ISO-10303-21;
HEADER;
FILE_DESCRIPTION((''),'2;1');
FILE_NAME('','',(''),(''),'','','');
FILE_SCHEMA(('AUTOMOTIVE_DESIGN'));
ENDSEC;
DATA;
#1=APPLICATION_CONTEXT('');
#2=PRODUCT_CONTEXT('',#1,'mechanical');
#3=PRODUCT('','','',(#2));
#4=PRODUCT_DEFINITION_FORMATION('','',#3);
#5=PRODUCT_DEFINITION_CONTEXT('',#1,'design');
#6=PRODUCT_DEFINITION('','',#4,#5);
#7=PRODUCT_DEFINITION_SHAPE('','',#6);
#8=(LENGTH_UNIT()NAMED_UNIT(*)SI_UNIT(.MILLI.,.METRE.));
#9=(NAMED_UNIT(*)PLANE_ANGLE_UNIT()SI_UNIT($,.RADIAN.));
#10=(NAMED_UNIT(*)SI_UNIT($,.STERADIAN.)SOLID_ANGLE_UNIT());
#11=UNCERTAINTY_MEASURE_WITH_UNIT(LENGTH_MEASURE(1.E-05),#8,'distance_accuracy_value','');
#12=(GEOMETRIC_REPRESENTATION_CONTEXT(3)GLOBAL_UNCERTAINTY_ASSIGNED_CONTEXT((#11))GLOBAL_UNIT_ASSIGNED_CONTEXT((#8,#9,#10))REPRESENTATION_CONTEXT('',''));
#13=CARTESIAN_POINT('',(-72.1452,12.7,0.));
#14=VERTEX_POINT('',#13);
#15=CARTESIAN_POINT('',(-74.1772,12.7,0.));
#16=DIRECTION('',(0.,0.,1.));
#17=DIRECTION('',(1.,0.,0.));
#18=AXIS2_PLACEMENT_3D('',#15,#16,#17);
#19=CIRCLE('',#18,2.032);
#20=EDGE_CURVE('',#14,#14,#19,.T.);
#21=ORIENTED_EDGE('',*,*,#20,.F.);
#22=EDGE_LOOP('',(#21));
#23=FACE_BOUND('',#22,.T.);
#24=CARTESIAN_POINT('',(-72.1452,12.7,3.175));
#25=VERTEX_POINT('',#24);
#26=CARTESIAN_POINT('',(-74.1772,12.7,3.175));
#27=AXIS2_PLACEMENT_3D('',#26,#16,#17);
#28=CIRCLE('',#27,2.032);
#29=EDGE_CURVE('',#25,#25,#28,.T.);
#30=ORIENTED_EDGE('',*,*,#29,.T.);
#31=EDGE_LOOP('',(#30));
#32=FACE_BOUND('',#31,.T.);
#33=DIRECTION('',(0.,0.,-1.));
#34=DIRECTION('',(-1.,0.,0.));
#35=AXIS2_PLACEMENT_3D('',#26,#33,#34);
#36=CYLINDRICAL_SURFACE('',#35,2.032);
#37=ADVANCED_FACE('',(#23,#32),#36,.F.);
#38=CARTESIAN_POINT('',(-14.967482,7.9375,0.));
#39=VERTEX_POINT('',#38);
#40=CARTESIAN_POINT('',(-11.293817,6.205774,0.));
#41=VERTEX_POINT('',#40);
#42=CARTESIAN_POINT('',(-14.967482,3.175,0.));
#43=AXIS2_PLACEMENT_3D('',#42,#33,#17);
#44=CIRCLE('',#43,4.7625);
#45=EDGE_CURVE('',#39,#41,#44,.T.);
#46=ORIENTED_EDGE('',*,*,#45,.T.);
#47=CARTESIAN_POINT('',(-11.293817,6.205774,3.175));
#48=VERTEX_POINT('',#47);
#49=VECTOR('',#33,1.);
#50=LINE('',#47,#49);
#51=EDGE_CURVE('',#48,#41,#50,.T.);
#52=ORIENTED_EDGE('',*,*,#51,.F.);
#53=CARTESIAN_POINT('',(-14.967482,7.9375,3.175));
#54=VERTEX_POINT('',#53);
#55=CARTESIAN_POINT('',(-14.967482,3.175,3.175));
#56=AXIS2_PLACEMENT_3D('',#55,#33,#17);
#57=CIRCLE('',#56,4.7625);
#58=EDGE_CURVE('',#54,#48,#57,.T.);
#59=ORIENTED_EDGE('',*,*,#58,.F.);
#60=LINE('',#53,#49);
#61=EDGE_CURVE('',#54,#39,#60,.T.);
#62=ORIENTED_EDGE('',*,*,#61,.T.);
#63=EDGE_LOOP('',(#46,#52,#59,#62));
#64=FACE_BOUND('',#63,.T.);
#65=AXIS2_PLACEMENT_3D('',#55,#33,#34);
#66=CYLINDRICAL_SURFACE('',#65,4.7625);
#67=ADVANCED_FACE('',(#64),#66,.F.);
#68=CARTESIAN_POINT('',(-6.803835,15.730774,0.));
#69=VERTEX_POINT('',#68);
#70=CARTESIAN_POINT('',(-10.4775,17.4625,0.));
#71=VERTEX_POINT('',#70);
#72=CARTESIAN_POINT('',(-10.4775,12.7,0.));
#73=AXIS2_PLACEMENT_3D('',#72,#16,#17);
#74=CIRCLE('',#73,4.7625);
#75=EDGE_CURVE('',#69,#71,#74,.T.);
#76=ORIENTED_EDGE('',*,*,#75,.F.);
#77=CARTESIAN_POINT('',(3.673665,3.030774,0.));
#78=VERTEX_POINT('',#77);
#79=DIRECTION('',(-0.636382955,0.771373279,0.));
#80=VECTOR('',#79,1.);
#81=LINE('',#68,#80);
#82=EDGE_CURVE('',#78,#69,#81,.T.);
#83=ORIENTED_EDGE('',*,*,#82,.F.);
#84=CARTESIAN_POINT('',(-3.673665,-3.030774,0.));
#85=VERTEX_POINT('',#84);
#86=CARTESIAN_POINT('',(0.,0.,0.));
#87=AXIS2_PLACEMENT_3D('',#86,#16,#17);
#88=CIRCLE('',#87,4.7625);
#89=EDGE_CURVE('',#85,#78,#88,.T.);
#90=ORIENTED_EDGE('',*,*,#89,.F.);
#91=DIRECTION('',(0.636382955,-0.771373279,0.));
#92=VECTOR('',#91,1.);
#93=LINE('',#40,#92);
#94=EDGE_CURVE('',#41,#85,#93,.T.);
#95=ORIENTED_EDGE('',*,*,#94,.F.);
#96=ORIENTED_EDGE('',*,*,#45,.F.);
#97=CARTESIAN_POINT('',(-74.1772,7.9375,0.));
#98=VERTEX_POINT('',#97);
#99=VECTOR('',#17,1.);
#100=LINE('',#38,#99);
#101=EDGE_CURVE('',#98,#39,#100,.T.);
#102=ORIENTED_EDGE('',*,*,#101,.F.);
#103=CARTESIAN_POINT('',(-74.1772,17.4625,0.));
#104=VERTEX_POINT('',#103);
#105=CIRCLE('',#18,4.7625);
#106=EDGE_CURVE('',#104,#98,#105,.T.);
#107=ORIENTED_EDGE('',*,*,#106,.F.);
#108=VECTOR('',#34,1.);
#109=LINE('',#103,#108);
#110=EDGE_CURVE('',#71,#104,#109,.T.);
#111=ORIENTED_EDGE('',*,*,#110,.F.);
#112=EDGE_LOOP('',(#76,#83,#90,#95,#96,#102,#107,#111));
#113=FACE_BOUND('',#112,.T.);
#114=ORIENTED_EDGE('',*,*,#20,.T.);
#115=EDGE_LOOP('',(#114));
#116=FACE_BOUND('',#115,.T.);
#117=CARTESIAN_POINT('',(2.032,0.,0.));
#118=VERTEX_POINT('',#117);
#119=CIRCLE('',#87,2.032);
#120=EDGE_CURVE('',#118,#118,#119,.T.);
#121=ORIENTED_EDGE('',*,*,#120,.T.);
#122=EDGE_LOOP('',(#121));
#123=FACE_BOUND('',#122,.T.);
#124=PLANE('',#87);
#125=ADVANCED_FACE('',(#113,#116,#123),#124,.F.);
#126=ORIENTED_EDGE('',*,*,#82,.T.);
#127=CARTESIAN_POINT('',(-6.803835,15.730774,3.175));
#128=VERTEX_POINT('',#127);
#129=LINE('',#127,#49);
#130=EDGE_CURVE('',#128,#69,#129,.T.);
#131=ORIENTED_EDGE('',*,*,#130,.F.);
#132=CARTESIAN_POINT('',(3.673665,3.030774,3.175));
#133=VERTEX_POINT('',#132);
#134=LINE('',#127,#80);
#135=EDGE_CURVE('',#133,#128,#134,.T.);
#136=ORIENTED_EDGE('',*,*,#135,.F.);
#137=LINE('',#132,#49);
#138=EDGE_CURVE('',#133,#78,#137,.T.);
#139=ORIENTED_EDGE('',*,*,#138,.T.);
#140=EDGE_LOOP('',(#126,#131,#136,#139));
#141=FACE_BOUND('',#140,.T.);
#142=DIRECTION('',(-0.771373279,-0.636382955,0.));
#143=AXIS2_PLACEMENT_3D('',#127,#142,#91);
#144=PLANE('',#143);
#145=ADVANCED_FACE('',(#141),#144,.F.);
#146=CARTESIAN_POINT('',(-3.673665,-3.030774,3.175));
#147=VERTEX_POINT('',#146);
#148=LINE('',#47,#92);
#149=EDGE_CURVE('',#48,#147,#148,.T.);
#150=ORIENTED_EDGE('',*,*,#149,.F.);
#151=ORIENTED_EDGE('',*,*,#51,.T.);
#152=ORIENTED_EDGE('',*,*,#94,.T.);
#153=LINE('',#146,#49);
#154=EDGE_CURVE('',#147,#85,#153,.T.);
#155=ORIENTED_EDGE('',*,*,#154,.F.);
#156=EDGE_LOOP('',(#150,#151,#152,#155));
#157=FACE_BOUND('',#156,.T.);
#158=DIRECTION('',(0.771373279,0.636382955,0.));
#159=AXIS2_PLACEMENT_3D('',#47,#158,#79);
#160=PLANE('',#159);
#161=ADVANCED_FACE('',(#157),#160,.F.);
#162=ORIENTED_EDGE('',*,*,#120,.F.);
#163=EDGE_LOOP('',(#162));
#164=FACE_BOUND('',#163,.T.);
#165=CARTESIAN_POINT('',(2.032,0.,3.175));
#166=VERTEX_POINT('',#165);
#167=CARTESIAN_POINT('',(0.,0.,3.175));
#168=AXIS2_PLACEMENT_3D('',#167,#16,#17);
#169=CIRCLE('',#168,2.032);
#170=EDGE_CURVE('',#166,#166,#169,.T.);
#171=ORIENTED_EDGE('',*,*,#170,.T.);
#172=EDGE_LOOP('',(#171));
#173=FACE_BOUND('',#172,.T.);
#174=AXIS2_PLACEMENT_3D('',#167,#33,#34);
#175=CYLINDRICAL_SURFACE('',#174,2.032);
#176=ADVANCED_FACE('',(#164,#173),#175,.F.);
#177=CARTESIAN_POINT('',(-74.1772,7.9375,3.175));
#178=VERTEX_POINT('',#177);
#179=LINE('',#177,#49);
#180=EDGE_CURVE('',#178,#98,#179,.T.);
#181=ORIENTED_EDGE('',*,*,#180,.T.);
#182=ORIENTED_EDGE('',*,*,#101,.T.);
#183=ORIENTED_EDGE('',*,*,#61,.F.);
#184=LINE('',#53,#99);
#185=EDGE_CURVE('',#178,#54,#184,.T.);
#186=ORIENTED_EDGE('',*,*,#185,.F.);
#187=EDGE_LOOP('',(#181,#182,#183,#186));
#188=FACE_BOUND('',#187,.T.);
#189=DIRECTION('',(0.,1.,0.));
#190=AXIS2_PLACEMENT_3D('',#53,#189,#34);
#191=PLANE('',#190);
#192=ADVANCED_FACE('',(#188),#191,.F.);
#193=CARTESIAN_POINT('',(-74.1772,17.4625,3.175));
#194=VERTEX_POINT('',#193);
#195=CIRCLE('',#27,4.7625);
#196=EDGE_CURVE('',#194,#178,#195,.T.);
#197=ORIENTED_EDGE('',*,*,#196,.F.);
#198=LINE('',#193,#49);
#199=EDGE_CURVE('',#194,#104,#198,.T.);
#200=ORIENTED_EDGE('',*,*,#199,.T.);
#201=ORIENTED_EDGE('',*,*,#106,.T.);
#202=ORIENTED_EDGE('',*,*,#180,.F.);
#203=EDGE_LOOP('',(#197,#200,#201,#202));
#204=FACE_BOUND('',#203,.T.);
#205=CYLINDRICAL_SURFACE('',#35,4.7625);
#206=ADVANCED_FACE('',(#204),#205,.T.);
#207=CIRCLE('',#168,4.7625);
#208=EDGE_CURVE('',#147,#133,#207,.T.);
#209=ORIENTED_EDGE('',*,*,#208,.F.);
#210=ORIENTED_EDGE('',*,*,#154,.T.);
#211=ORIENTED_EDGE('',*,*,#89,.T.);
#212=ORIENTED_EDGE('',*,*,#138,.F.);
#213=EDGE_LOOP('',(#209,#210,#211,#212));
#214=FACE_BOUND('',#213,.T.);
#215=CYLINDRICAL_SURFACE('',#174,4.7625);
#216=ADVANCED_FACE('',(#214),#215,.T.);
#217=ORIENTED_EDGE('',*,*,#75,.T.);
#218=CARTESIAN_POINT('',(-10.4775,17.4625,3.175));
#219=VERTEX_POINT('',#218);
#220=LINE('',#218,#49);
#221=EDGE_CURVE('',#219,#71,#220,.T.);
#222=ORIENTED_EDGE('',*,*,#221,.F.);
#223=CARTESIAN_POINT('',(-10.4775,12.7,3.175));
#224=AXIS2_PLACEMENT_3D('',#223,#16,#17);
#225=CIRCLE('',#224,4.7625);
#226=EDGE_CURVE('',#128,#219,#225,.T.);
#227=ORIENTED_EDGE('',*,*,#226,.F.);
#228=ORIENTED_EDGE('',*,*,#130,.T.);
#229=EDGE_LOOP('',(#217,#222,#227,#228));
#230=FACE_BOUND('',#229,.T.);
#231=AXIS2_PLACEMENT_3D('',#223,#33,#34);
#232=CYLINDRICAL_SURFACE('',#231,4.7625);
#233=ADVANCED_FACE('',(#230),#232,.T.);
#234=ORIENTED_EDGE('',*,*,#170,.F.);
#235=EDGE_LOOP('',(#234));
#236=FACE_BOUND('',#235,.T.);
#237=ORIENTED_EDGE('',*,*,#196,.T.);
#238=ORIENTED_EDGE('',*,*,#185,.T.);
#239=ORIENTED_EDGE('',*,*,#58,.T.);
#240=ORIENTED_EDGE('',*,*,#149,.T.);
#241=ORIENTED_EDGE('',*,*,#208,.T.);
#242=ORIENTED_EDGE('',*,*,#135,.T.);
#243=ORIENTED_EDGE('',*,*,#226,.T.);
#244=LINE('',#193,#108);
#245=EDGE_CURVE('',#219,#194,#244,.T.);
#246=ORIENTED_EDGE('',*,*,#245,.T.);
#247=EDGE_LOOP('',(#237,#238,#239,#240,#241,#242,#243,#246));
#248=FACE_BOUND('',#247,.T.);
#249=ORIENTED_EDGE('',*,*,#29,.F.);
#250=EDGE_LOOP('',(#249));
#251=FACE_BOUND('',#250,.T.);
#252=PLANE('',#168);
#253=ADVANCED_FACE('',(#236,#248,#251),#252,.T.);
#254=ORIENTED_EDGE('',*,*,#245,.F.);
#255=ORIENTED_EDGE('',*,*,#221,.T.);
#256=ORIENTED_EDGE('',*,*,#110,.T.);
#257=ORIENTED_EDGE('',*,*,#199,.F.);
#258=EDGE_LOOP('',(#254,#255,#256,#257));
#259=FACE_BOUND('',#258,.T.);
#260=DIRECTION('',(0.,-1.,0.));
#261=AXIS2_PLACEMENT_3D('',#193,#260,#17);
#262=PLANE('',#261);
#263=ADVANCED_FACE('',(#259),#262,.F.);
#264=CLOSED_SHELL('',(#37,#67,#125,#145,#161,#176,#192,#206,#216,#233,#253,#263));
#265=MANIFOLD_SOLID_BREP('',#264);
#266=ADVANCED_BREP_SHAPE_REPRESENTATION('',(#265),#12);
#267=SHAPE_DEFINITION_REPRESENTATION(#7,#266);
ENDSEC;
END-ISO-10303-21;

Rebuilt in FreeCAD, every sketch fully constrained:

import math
import FreeCAD as App
import Part
import Sketcher
from FreeCAD import Vector
Q = App.Units.Quantity

doc = App.newDocument("Part")
params = doc.addObject("Spreadsheet::Sheet", "Params")
for row, (alias, value) in enumerate([
    ("sketch1_diameter", "0.16 in"),
    ("sketch1_radius", "0.1875 in"),
    ("pad1_length", "0.125 in"),
], start=1):
    params.set(f"A{row}", alias)
    params.set(f"B{row}", "=" + value)
    params.setAlias(f"B{row}", alias)

body = doc.addObject("PartDesign::Body", "Body")

# Sketch on XY plane
sketch1 = body.newObject("Sketcher::SketchObject", "Sketch")
sketch1.AttachmentSupport = (doc.getObject("XY_Plane"), [""])
sketch1.MapMode = "FlatFace"
sketch1.addGeometry([
    Part.LineSegment(Vector(-10.5, 17.5, 0), Vector(-74.2, 17.5, 0)),  # 0
    Part.ArcOfCircle(Part.Circle(Vector(-74.2, 12.7, 0), Vector(0, 0, 1), 4.8), math.radians(90), math.radians(270)),  # 1
    Part.LineSegment(Vector(-74.2, 7.9, 0), Vector(-15, 7.9, 0)),  # 2
    Part.ArcOfCircle(Part.Circle(Vector(-15, 3.2, 0), Vector(0, 0, 1), 4.8), math.radians(40), math.radians(90)),  # 3
    Part.LineSegment(Vector(-11.3, 6.2, 0), Vector(-3.7, -3, 0)),  # 4
    Part.ArcOfCircle(Part.Circle(Vector(0, 0, 0), Vector(0, 0, 1), 4.8), math.radians(-140), math.radians(40)),  # 5
    Part.LineSegment(Vector(3.7, 3, 0), Vector(-6.8, 15.7, 0)),  # 6
    Part.ArcOfCircle(Part.Circle(Vector(-10.5, 12.7, 0), Vector(0, 0, 1), 4.8), math.radians(40), math.radians(90)),  # 7
    Part.Circle(Vector(0, 0, 0), Vector(0, 0, 1), 2),  # 8
    Part.Circle(Vector(-74.2, 12.7, 0), Vector(0, 0, 1), 2),  # 9
], False)
sketch1.addConstraint([
    Sketcher.Constraint("Tangent", 0, 2, 1, 1),
    Sketcher.Constraint("Tangent", 1, 2, 2, 1),
    Sketcher.Constraint("Tangent", 2, 2, 3, 2),
    Sketcher.Constraint("Tangent", 3, 1, 4, 1),
    Sketcher.Constraint("Tangent", 4, 2, 5, 1),
    Sketcher.Constraint("Tangent", 5, 2, 6, 1),
    Sketcher.Constraint("Tangent", 6, 2, 7, 1),
    Sketcher.Constraint("Tangent", 7, 2, 0, 1),
    Sketcher.Constraint("Horizontal", 0),
    Sketcher.Constraint("Horizontal", 2),
    Sketcher.Constraint("Coincident", 5, 3, -1, 1),
    Sketcher.Constraint("Coincident", 8, 3, -1, 1),
    Sketcher.Constraint("Coincident", 9, 3, 1, 3),
    Sketcher.Constraint("Equal", 1, 3),
    Sketcher.Constraint("Equal", 3, 5),
    Sketcher.Constraint("Equal", 5, 7),
    Sketcher.Constraint("Equal", 8, 9),
    Sketcher.Constraint("Parallel", 4, 6),
    Sketcher.Constraint("Diameter", 8, Q("0.16 in")),
    Sketcher.Constraint("Radius", 1, Q("0.1875 in")),
    Sketcher.Constraint("DistanceY", -1, 1, 1, 3, Q("0.5 in")),
    Sketcher.Constraint("DistanceX", 0, 2, 0, 1, 63.6997),
    Sketcher.Constraint("DistanceX", 7, 3, -1, 1, Q("0.4125 in")),
])
sketch1.setExpression("Constraints[18]", "Params.sketch1_diameter")
sketch1.setExpression("Constraints[19]", "Params.sketch1_radius")
pad1 = body.newObject("PartDesign::Pad", "Pad")
pad1.Profile = sketch1
pad1.setExpression("Length", "Params.pad1_length")

doc.recompute()
